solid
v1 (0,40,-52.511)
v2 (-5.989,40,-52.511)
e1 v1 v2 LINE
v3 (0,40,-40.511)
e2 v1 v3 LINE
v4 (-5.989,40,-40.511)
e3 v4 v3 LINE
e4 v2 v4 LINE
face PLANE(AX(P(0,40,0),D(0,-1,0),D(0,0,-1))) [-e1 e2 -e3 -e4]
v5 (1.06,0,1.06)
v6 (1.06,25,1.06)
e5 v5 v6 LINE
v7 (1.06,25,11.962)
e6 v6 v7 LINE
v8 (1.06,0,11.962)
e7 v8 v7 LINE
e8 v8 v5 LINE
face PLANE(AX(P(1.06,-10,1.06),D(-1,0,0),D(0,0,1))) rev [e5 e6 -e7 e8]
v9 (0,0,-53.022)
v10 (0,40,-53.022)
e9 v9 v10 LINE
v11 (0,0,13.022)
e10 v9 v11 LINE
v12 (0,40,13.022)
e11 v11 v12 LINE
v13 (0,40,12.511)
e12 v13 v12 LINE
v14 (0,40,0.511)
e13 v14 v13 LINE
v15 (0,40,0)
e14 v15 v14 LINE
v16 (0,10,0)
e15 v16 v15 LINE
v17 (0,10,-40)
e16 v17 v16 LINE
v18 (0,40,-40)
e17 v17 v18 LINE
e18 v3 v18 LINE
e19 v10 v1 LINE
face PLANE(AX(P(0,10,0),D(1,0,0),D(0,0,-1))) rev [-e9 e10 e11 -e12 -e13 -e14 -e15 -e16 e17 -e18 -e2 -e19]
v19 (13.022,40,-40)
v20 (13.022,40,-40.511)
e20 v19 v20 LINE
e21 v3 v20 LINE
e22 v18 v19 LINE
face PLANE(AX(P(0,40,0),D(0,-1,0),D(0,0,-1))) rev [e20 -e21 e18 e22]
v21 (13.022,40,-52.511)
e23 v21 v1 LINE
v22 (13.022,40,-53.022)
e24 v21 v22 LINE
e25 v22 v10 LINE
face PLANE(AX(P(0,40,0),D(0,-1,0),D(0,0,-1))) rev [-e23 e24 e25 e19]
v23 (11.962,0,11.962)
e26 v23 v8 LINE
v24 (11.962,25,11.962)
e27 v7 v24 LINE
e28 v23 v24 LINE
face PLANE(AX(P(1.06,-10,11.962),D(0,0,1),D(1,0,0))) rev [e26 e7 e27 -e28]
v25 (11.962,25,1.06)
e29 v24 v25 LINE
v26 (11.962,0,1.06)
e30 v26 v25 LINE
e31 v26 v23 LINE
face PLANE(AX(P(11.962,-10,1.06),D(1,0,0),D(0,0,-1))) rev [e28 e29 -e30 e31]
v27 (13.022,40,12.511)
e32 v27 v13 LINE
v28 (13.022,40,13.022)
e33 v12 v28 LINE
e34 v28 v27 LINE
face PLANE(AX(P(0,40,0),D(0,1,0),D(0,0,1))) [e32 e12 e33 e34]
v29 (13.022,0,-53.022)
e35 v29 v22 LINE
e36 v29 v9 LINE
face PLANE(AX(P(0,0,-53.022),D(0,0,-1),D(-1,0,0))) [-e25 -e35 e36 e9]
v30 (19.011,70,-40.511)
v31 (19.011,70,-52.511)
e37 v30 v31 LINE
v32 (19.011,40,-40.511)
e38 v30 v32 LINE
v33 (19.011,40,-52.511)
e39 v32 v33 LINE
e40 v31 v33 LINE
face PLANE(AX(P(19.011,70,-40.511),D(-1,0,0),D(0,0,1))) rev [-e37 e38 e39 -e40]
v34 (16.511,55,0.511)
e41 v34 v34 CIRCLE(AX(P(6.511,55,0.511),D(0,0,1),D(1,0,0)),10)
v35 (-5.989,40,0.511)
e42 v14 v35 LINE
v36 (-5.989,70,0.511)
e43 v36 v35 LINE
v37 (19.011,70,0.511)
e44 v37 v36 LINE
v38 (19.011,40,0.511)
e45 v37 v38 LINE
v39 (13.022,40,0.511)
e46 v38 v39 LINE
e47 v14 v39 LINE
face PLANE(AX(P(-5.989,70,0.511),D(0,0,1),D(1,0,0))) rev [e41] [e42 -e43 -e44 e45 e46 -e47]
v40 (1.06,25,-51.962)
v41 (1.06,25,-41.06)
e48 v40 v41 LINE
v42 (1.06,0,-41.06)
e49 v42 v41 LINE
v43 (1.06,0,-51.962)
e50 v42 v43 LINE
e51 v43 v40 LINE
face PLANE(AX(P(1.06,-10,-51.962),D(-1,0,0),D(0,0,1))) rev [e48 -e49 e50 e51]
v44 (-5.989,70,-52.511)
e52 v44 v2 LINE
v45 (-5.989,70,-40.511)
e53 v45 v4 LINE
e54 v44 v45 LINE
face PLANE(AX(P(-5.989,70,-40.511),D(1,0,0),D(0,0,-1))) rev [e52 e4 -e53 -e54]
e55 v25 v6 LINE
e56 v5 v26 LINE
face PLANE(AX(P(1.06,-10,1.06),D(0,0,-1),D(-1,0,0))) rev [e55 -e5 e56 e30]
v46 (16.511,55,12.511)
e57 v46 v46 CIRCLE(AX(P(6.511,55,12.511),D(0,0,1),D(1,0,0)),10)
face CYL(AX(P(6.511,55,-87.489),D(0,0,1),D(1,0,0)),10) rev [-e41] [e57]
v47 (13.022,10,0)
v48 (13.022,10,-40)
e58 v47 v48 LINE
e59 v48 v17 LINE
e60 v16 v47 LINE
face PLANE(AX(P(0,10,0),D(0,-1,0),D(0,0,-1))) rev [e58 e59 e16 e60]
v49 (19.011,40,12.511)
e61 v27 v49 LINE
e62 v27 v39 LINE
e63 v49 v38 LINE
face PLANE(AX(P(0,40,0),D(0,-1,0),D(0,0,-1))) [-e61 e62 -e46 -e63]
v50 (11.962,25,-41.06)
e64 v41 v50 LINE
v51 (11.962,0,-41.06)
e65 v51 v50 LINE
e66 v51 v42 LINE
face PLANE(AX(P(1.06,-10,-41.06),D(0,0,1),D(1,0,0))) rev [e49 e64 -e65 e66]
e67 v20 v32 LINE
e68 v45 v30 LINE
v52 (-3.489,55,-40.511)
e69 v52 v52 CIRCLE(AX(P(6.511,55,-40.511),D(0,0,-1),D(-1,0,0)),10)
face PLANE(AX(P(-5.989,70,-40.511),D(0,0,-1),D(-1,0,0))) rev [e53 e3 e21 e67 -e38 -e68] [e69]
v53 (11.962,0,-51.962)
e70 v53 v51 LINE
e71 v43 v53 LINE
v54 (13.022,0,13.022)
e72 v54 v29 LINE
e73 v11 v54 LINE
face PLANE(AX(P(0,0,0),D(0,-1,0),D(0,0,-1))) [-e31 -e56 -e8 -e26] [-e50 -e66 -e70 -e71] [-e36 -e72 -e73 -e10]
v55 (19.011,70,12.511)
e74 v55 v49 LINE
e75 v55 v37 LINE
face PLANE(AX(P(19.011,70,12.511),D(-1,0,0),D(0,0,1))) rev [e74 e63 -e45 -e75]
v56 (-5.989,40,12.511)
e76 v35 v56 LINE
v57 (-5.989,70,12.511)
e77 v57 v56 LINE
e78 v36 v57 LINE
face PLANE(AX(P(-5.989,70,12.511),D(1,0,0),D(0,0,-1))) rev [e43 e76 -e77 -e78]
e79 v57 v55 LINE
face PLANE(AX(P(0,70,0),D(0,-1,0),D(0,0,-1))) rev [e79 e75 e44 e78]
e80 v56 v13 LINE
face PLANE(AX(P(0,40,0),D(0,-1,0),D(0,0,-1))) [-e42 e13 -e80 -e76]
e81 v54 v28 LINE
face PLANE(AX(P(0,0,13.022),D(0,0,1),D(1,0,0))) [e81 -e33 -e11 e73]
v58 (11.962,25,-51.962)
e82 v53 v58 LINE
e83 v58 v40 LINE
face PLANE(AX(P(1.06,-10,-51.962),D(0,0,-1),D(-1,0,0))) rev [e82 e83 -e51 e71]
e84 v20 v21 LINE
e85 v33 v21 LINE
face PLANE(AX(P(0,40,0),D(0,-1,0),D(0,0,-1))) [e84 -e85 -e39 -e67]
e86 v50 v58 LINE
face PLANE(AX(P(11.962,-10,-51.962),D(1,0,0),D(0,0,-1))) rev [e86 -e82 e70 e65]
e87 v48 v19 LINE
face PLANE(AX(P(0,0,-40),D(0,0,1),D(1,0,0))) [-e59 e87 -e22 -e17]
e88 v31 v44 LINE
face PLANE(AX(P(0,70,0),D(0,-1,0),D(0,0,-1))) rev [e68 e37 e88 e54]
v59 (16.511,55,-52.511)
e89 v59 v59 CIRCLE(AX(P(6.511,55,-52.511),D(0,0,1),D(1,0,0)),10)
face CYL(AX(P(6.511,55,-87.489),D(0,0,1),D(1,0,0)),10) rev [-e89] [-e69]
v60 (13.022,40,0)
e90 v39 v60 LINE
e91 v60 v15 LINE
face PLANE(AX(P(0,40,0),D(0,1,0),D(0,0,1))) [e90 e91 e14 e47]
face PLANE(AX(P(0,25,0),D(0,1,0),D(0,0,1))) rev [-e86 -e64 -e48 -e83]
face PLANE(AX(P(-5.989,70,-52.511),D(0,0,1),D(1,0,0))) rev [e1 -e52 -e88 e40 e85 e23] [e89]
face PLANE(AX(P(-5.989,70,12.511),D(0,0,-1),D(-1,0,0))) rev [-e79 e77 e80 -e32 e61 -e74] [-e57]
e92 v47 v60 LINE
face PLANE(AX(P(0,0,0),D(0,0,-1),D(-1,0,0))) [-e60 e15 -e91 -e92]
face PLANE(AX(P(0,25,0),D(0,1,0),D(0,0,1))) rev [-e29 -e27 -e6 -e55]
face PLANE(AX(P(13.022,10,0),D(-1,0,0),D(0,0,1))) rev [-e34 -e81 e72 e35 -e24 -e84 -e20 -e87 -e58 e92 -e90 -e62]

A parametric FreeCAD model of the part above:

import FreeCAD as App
import Part
import Sketcher
from FreeCAD import Vector

doc = App.newDocument("Part")
body = doc.addObject("PartDesign::Body", "Body")

# Sketch on XZ plane
sketch1 = body.newObject("Sketcher::SketchObject", "Sketch")
sketch1.AttachmentSupport = (doc.getObject("XZ_Plane"), [""])
sketch1.MapMode = "FlatFace"
sketch1.addGeometry(Part.LineSegment(Vector(0, -40, 0), Vector(0, 0, 0)), False)
sketch1.addGeometry(Part.LineSegment(Vector(0, 0, 0), Vector(13.022, 0, 0)), False)
sketch1.addGeometry(Part.LineSegment(Vector(13.022, 0, 0), Vector(13.022, -40, 0)), False)
sketch1.addGeometry(Part.LineSegment(Vector(13.022, -40, 0), Vector(0, -40, 0)), False)
sketch1.addConstraint(Sketcher.Constraint("Coincident", 0, 2, 1, 1))
sketch1.addConstraint(Sketcher.Constraint("Coincident", 1, 2, 2, 1))
sketch1.addConstraint(Sketcher.Constraint("Coincident", 2, 2, 3, 1))
sketch1.addConstraint(Sketcher.Constraint("Coincident", 3, 2, 0, 1))
sketch1.addConstraint(Sketcher.Constraint("Vertical", 0))
sketch1.addConstraint(Sketcher.Constraint("Horizontal", 1))
sketch1.addConstraint(Sketcher.Constraint("Vertical", 2))
sketch1.addConstraint(Sketcher.Constraint("Horizontal", 3))
sketch1.addConstraint(Sketcher.Constraint("Coincident", 0, 2, -1, 1))
sketch1.addConstraint(Sketcher.Constraint("DistanceY", 0, 1, 0, 2, 40.0))
sketch1.addConstraint(Sketcher.Constraint("DistanceX", 1, 1, 1, 2, 13.022))
pad1 = body.newObject("PartDesign::Pad", "Pad")
pad1.Profile = sketch1
pad1.Length = 10
pad1.Reversed = True

# Sketch on XZ plane
sketch2 = body.newObject("Sketcher::SketchObject", "Sketch001")
sketch2.AttachmentSupport = (doc.getObject("XZ_Plane"), [""])
sketch2.MapMode = "FlatFace"
sketch2.AttachmentOffset = App.Placement(Vector(0, 0, -10), App.Rotation())
sketch2.addGeometry(Part.LineSegment(Vector(0, -53.022, 0), Vector(0, -40, 0)), False)
sketch2.addGeometry(Part.LineSegment(Vector(0, -40, 0), Vector(13.022, -40, 0)), False)
sketch2.addGeometry(Part.LineSegment(Vector(13.022, -40, 0), Vector(13.022, -53.022, 0)), False)
sketch2.addGeometry(Part.LineSegment(Vector(13.022, -53.022, 0), Vector(0, -53.022, 0)), False)
sketch2.addGeometry(Part.LineSegment(Vector(0, 0, 0), Vector(0, 13.022, 0)), False)
sketch2.addGeometry(Part.LineSegment(Vector(0, 13.022, 0), Vector(13.022, 13.022, 0)), False)
sketch2.addGeometry(Part.LineSegment(Vector(13.022, 13.022, 0), Vector(13.022, 0, 0)), False)
sketch2.addGeometry(Part.LineSegment(Vector(13.022, 0, 0), Vector(0, 0, 0)), False)
sketch2.addConstraint(Sketcher.Constraint("Coincident", 0, 2, 1, 1))
sketch2.addConstraint(Sketcher.Constraint("Coincident", 1, 2, 2, 1))
sketch2.addConstraint(Sketcher.Constraint("Coincident", 2, 2, 3, 1))
sketch2.addConstraint(Sketcher.Constraint("Coincident", 3, 2, 0, 1))
sketch2.addConstraint(Sketcher.Constraint("Coincident", 4, 2, 5, 1))
sketch2.addConstraint(Sketcher.Constraint("Coincident", 5, 2, 6, 1))
sketch2.addConstraint(Sketcher.Constraint("Coincident", 6, 2, 7, 1))
sketch2.addConstraint(Sketcher.Constraint("Coincident", 7, 2, 4, 1))
sketch2.addConstraint(Sketcher.Constraint("Vertical", 0))
sketch2.addConstraint(Sketcher.Constraint("Horizontal", 1))
sketch2.addConstraint(Sketcher.Constraint("Vertical", 2))
sketch2.addConstraint(Sketcher.Constraint("Horizontal", 3))
sketch2.addConstraint(Sketcher.Constraint("Vertical", 4))
sketch2.addConstraint(Sketcher.Constraint("Horizontal", 5))
sketch2.addConstraint(Sketcher.Constraint("Vertical", 6))
sketch2.addConstraint(Sketcher.Constraint("Horizontal", 7))
sketch2.addConstraint(Sketcher.Constraint("Coincident", 7, 2, -1, 1))
sketch2.addConstraint(Sketcher.Constraint("PointOnObject", 0, 2, -2))
sketch2.addConstraint(Sketcher.Constraint("Vertical", 2, 2, 5, 2))
sketch2.addConstraint(Sketcher.Constraint("Equal", 7, 0))
sketch2.addConstraint(Sketcher.Constraint("Equal", 2, 4))
sketch2.addConstraint(Sketcher.Constraint("DistanceY", 0, 2, -1, 1, 40.0))
sketch2.addConstraint(Sketcher.Constraint("DistanceX", 1, 1, 1, 2, 13.022))
pad2 = body.newObject("PartDesign::Pad", "Pad001")
pad2.Profile = sketch2
pad2.Type = "TwoLengths"
pad2.Length = 30
pad2.Length2 = 10
pad2.Reversed = True

# Sketch on XZ plane
sketch3 = body.newObject("Sketcher::SketchObject", "Sketch002")
sketch3.AttachmentSupport = (doc.getObject("XZ_Plane"), [""])
sketch3.MapMode = "FlatFace"
sketch3.AttachmentOffset = App.Placement(Vector(0, 0, -40), App.Rotation())
sketch3.addGeometry(Part.LineSegment(Vector(1.06, -51.962, 0), Vector(1.06, -41.06, 0)), False)
sketch3.addGeometry(Part.LineSegment(Vector(1.06, -41.06, 0), Vector(11.962, -41.06, 0)), False)
sketch3.addGeometry(Part.LineSegment(Vector(11.962, -41.06, 0), Vector(11.962, -51.962, 0)), False)
sketch3.addGeometry(Part.LineSegment(Vector(11.962, -51.962, 0), Vector(1.06, -51.962, 0)), False)
sketch3.addGeometry(Part.LineSegment(Vector(1.06, 1.06, 0), Vector(1.06, 11.962, 0)), False)
sketch3.addGeometry(Part.LineSegment(Vector(1.06, 11.962, 0), Vector(11.962, 11.962, 0)), False)
sketch3.addGeometry(Part.LineSegment(Vector(11.962, 11.962, 0), Vector(11.962, 1.06, 0)), False)
sketch3.addGeometry(Part.LineSegment(Vector(11.962, 1.06, 0), Vector(1.06, 1.06, 0)), False)
sketch3.addConstraint(Sketcher.Constraint("Coincident", 0, 2, 1, 1))
sketch3.addConstraint(Sketcher.Constraint("Coincident", 1, 2, 2, 1))
sketch3.addConstraint(Sketcher.Constraint("Coincident", 2, 2, 3, 1))
sketch3.addConstraint(Sketcher.Constraint("Coincident", 3, 2, 0, 1))
sketch3.addConstraint(Sketcher.Constraint("Coincident", 4, 2, 5, 1))
sketch3.addConstraint(Sketcher.Constraint("Coincident", 5, 2, 6, 1))
sketch3.addConstraint(Sketcher.Constraint("Coincident", 6, 2, 7, 1))
sketch3.addConstraint(Sketcher.Constraint("Coincident", 7, 2, 4, 1))
sketch3.addConstraint(Sketcher.Constraint("Vertical", 0))
sketch3.addConstraint(Sketcher.Constraint("Horizontal", 1))
sketch3.addConstraint(Sketcher.Constraint("Vertical", 2))
sketch3.addConstraint(Sketcher.Constraint("Horizontal", 3))
sketch3.addConstraint(Sketcher.Constraint("Vertical", 4))
sketch3.addConstraint(Sketcher.Constraint("Horizontal", 5))
sketch3.addConstraint(Sketcher.Constraint("Vertical", 6))
sketch3.addConstraint(Sketcher.Constraint("Horizontal", 7))
sketch3.addConstraint(Sketcher.Constraint("Vertical", 3, 2, 4, 2))
sketch3.addConstraint(Sketcher.Constraint("Vertical", 2, 2, 5, 2))
sketch3.addConstraint(Sketcher.Constraint("Equal", 7, 0))
sketch3.addConstraint(Sketcher.Constraint("Equal", 2, 4))
sketch3.addConstraint(Sketcher.Constraint("DistanceX", 1, 1, 1, 2, 10.902))
sketch3.addConstraint(Sketcher.Constraint("DistanceX", -1, 1, 0, 2, 1.06))
sketch3.addConstraint(Sketcher.Constraint("DistanceY", 0, 2, -1, 1, 41.06))
sketch3.addConstraint(Sketcher.Constraint("DistanceY", -1, 1, 6, 2, 1.06))
pocket1 = body.newObject("PartDesign::Pocket", "Pocket")
pocket1.Profile = sketch3
pocket1.Length = 50
pocket1.Reversed = True

# Sketch on XZ plane
sketch4 = body.newObject("Sketcher::SketchObject", "Sketch003")
sketch4.AttachmentSupport = (doc.getObject("XZ_Plane"), [""])
sketch4.MapMode = "FlatFace"
sketch4.AttachmentOffset = App.Placement(Vector(0, 0, -25), App.Rotation())
sketch4.addGeometry(Part.LineSegment(Vector(1.06, -51.962, 0), Vector(1.06, -41.06, 0)), False)
sketch4.addGeometry(Part.LineSegment(Vector(1.06, -41.06, 0), Vector(11.962, -41.06, 0)), False)
sketch4.addGeometry(Part.LineSegment(Vector(11.962, -41.06, 0), Vector(11.962, -51.962, 0)), False)
sketch4.addGeometry(Part.LineSegment(Vector(11.962, -51.962, 0), Vector(1.06, -51.962, 0)), False)
sketch4.addGeometry(Part.LineSegment(Vector(1.06, 1.06, 0), Vector(1.06, 11.962, 0)), False)
sketch4.addGeometry(Part.LineSegment(Vector(1.06, 11.962, 0), Vector(11.962, 11.962, 0)), False)
sketch4.addGeometry(Part.LineSegment(Vector(11.962, 11.962, 0), Vector(11.962, 1.06, 0)), False)
sketch4.addGeometry(Part.LineSegment(Vector(11.962, 1.06, 0), Vector(1.06, 1.06, 0)), False)
sketch4.addConstraint(Sketcher.Constraint("Coincident", 0, 2, 1, 1))
sketch4.addConstraint(Sketcher.Constraint("Coincident", 1, 2, 2, 1))
sketch4.addConstraint(Sketcher.Constraint("Coincident", 2, 2, 3, 1))
sketch4.addConstraint(Sketcher.Constraint("Coincident", 3, 2, 0, 1))
sketch4.addConstraint(Sketcher.Constraint("Coincident", 4, 2, 5, 1))
sketch4.addConstraint(Sketcher.Constraint("Coincident", 5, 2, 6, 1))
sketch4.addConstraint(Sketcher.Constraint("Coincident", 6, 2, 7, 1))
sketch4.addConstraint(Sketcher.Constraint("Coincident", 7, 2, 4, 1))
sketch4.addConstraint(Sketcher.Constraint("Vertical", 0))
sketch4.addConstraint(Sketcher.Constraint("Horizontal", 1))
sketch4.addConstraint(Sketcher.Constraint("Vertical", 2))
sketch4.addConstraint(Sketcher.Constraint("Horizontal", 3))
sketch4.addConstraint(Sketcher.Constraint("Vertical", 4))
sketch4.addConstraint(Sketcher.Constraint("Horizontal", 5))
sketch4.addConstraint(Sketcher.Constraint("Vertical", 6))
sketch4.addConstraint(Sketcher.Constraint("Horizontal", 7))
sketch4.addConstraint(Sketcher.Constraint("Vertical", 3, 2, 4, 2))
sketch4.addConstraint(Sketcher.Constraint("Vertical", 2, 2, 5, 2))
sketch4.addConstraint(Sketcher.Constraint("Equal", 7, 0))
sketch4.addConstraint(Sketcher.Constraint("Equal", 2, 4))
sketch4.addConstraint(Sketcher.Constraint("DistanceX", 1, 1, 1, 2, 10.902))
sketch4.addConstraint(Sketcher.Constraint("DistanceX", -1, 1, 0, 2, 1.06))
sketch4.addConstraint(Sketcher.Constraint("DistanceY", 0, 2, -1, 1, 41.06))
sketch4.addConstraint(Sketcher.Constraint("DistanceY", -1, 1, 6, 2, 1.06))
pad3 = body.newObject("PartDesign::Pad", "Pad002")
pad3.Profile = sketch4
pad3.Length = 15
pad3.Reversed = True

# Sketch on XZ plane
sketch5 = body.newObject("Sketcher::SketchObject", "Sketch004")
sketch5.AttachmentSupport = (doc.getObject("XZ_Plane"), [""])
sketch5.MapMode = "FlatFace"
sketch5.AttachmentOffset = App.Placement(Vector(0, 0, -40), App.Rotation())
sketch5.addGeometry(Part.LineSegment(Vector(-5.989, -52.511, 0), Vector(-5.989, -40.511, 0)), False)
sketch5.addGeometry(Part.LineSegment(Vector(-5.989, -40.511, 0), Vector(19.011, -40.511, 0)), False)
sketch5.addGeometry(Part.LineSegment(Vector(19.011, -40.511, 0), Vector(19.011, -52.511, 0)), False)
sketch5.addGeometry(Part.LineSegment(Vector(19.011, -52.511, 0), Vector(-5.989, -52.511, 0)), False)
sketch5.addGeometry(Part.LineSegment(Vector(-5.989, 0.511, 0), Vector(-5.989, 12.511, 0)), False)
sketch5.addGeometry(Part.LineSegment(Vector(-5.989, 12.511, 0), Vector(19.011, 12.511, 0)), False)
sketch5.addGeometry(Part.LineSegment(Vector(19.011, 12.511, 0), Vector(19.011, 0.511, 0)), False)
sketch5.addGeometry(Part.LineSegment(Vector(19.011, 0.511, 0), Vector(-5.989, 0.511, 0)), False)
sketch5.addConstraint(Sketcher.Constraint("Coincident", 0, 2, 1, 1))
sketch5.addConstraint(Sketcher.Constraint("Coincident", 1, 2, 2, 1))
sketch5.addConstraint(Sketcher.Constraint("Coincident", 2, 2, 3, 1))
sketch5.addConstraint(Sketcher.Constraint("Coincident", 3, 2, 0, 1))
sketch5.addConstraint(Sketcher.Constraint("Coincident", 4, 2, 5, 1))
sketch5.addConstraint(Sketcher.Constraint("Coincident", 5, 2, 6, 1))
sketch5.addConstraint(Sketcher.Constraint("Coincident", 6, 2, 7, 1))
sketch5.addConstraint(Sketcher.Constraint("Coincident", 7, 2, 4, 1))
sketch5.addConstraint(Sketcher.Constraint("Vertical", 0))
sketch5.addConstraint(Sketcher.Constraint("Horizontal", 1))
sketch5.addConstraint(Sketcher.Constraint("Vertical", 2))
sketch5.addConstraint(Sketcher.Constraint("Horizontal", 3))
sketch5.addConstraint(Sketcher.Constraint("Vertical", 4))
sketch5.addConstraint(Sketcher.Constraint("Horizontal", 5))
sketch5.addConstraint(Sketcher.Constraint("Vertical", 6))
sketch5.addConstraint(Sketcher.Constraint("Horizontal", 7))
sketch5.addConstraint(Sketcher.Constraint("Vertical", 3, 2, 4, 2))
sketch5.addConstraint(Sketcher.Constraint("Vertical", 2, 2, 5, 2))
sketch5.addConstraint(Sketcher.Constraint("Equal", 2, 4))
sketch5.addConstraint(Sketcher.Constraint("DistanceX", 1, 1, 1, 2, 25.0))
sketch5.addConstraint(Sketcher.Constraint("DistanceY", 0, 1, 0, 2, 12.0))
sketch5.addConstraint(Sketcher.Constraint("DistanceX", 0, 2, -1, 1, 5.989))
sketch5.addConstraint(Sketcher.Constraint("DistanceY", 0, 2, -1, 1, 40.511))
sketch5.addConstraint(Sketcher.Constraint("DistanceY", -1, 1, 4, 2, 12.511))
pad4 = body.newObject("PartDesign::Pad", "Pad003")
pad4.Profile = sketch5
pad4.Length = 30
pad4.Reversed = True

# Sketch on XY plane
sketch6 = body.newObject("Sketcher::SketchObject", "Sketch005")
sketch6.AttachmentSupport = (doc.getObject("XY_Plane"), [""])
sketch6.MapMode = "FlatFace"
sketch6.AttachmentOffset = App.Placement(Vector(0, 0, 12.511), App.Rotation())
sketch6.addGeometry(Part.Circle(Vector(6.511, 55, 0), Vector(0, 0, 1), 10), False)
sketch6.addConstraint(Sketcher.Constraint("Diameter", 0, 20.0))
sketch6.addConstraint(Sketcher.Constraint("DistanceY", -1, 1, 0, 3, 55.0))
sketch6.addConstraint(Sketcher.Constraint("DistanceX", -1, 1, 0, 3, 6.511))
pocket2 = body.newObject("PartDesign::Pocket", "Pocket001")
pocket2.Profile = sketch6
pocket2.Length = 100

doc.recompute()
